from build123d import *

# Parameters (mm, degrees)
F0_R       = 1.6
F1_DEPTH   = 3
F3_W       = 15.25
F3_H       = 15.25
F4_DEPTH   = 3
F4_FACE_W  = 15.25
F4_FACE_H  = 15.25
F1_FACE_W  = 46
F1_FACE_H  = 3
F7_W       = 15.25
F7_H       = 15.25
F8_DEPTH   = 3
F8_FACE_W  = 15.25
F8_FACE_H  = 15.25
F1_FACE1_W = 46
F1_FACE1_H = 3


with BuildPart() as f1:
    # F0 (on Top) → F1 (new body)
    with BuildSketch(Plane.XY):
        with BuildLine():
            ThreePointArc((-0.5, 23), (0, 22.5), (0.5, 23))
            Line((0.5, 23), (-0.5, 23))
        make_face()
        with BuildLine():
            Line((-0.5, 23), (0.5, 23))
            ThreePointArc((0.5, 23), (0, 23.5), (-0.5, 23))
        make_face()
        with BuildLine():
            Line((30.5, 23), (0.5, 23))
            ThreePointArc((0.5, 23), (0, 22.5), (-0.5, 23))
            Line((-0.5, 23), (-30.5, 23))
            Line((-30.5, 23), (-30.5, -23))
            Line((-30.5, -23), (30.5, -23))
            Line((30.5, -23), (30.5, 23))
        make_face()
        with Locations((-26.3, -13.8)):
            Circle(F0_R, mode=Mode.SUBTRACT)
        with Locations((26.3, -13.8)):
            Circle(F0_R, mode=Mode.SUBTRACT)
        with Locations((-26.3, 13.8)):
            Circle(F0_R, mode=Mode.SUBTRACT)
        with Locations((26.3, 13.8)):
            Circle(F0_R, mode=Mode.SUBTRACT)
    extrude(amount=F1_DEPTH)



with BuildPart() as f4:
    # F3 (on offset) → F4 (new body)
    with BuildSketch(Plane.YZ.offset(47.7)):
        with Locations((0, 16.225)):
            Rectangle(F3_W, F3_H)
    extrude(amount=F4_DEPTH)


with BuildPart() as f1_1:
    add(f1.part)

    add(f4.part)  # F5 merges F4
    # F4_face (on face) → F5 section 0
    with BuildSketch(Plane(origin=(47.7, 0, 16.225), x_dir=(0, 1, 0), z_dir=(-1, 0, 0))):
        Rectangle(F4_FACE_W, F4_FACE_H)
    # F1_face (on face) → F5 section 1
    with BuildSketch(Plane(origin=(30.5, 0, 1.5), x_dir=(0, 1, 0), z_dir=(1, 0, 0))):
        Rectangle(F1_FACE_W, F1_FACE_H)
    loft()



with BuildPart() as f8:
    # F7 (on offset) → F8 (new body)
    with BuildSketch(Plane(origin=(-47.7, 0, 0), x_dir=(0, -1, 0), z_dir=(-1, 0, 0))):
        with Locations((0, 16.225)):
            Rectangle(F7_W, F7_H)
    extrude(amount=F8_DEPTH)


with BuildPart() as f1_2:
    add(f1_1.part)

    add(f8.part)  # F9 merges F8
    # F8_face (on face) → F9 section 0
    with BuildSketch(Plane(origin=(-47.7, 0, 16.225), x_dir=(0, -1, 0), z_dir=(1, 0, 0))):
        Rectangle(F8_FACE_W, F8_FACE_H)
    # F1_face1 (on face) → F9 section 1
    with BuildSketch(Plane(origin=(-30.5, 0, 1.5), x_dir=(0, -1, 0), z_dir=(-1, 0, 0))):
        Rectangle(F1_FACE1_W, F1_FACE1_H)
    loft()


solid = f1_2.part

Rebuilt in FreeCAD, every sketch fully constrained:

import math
import FreeCAD as App
import Part
import Sketcher

V = App.Vector

doc = App.newDocument("Part")
params = doc.addObject("Spreadsheet::Sheet", "Params")
for row, (alias, value) in enumerate([
    ("sketch1_diameter", "3.2 mm"),
    ("sketch1_radius", "0.5 mm"),
    ("sketch1_width", "30 mm"),
    ("sketch1_height", "46 mm"),
    ("pad1_length", "3 mm"),
    ("sketch2_width", "15.25 mm"),
    ("pad2_length", "3 mm"),
    ("sketch3_width", "15.25 mm"),
    ("sketch4_width", "46 mm"),
    ("sketch4_height", "3 mm"),
    ("sketch5_width", "15.25 mm"),
    ("pad3_length", "3 mm"),
    ("sketch6_width", "15.25 mm"),
    ("sketch7_width", "46 mm"),
    ("sketch7_height", "3 mm"),
], start=1):
    params.set(f"A{row}", alias)
    params.set(f"B{row}", "=" + value)
    params.setAlias(f"B{row}", alias)

body = doc.addObject("PartDesign::Body", "Body")

# Sketch on XY plane
sketch1 = doc.addObject("Sketcher::SketchObject", "Sketch")
body.addObject(sketch1)
sketch1.AttachmentSupport = (doc.XY_Plane, [""])
sketch1.MapMode = "FlatFace"
sketch1.addGeometry([
    Part.ArcOfCircle(Part.Circle(V(0, 23, 0), V(0, 0, 1), 0.5), math.radians(0), math.radians(180)),  # 0
    Part.LineSegment(V(-0.5, 23, 0), V(-30.5, 23, 0)),  # 1
    Part.LineSegment(V(-30.5, 23, 0), V(-30.5, -23, 0)),  # 2
    Part.LineSegment(V(-30.5, -23, 0), V(30.5, -23, 0)),  # 3
    Part.LineSegment(V(30.5, -23, 0), V(30.5, 23, 0)),  # 4
    Part.LineSegment(V(30.5, 23, 0), V(0.5, 23, 0)),  # 5
    Part.Circle(V(-26.3, -13.8, 0), V(0, 0, 1), 1.6),  # 6
    Part.Circle(V(26.3, -13.8, 0), V(0, 0, 1), 1.6),  # 7
    Part.Circle(V(-26.3, 13.8, 0), V(0, 0, 1), 1.6),  # 8
    Part.Circle(V(26.3, 13.8, 0), V(0, 0, 1), 1.6),  # 9
], False)
sketch1.addConstraint([
    Sketcher.Constraint("Coincident", 0, 2, 1, 1),
    Sketcher.Constraint("Coincident", 1, 2, 2, 1),
    Sketcher.Constraint("Coincident", 2, 2, 3, 1),
    Sketcher.Constraint("Coincident", 3, 2, 4, 1),
    Sketcher.Constraint("Coincident", 4, 2, 5, 1),
    Sketcher.Constraint("Coincident", 5, 2, 0, 1),
    Sketcher.Constraint("Horizontal", 1),
    Sketcher.Constraint("Vertical", 2),
    Sketcher.Constraint("Horizontal", 3),
    Sketcher.Constraint("Vertical", 4),
    Sketcher.Constraint("Horizontal", 5),
    Sketcher.Constraint("Equal", 6, 7),
    Sketcher.Constraint("Equal", 7, 8),
    Sketcher.Constraint("Equal", 8, 9),
    Sketcher.Constraint("Symmetric", 7, 3, 8, 3, -1, 1),
    Sketcher.Constraint("Symmetric", 6, 3, 9, 3, -1, 1),
    Sketcher.Constraint("Symmetric", 1, 2, 3, 2, -1, 1),
    Sketcher.Constraint("Symmetric", 6, 3, 7, 3, -2),
    Sketcher.Constraint("Symmetric", 0, 2, 5, 2, -2),
    Sketcher.Constraint("Diameter", 6, 3.2),
    Sketcher.Constraint("Radius", 0, 0.5),
    Sketcher.Constraint("DistanceX", 1, 2, 1, 1, 30.0),
    Sketcher.Constraint("DistanceY", 2, 2, 2, 1, 46.0),
    Sketcher.Constraint("DistanceY", -1, 1, 0, 3, 23.0),
    Sketcher.Constraint("DistanceX", 6, 3, -1, 1, 26.3),
    Sketcher.Constraint("DistanceY", 6, 3, -1, 1, 13.8),
])
sketch1.setExpression("Constraints[19]", "Params.sketch1_diameter")
sketch1.setExpression("Constraints[20]", "Params.sketch1_radius")
sketch1.setExpression("Constraints[21]", "Params.sketch1_width")
sketch1.setExpression("Constraints[22]", "Params.sketch1_height")
pad1 = doc.addObject("PartDesign::Pad", "Pad")
body.addObject(pad1)
pad1.Profile = sketch1
pad1.setExpression("Length", "Params.pad1_length")
body2 = doc.addObject("PartDesign::Body", "Body001")

# Sketch on YZ plane
sketch2 = doc.addObject("Sketcher::SketchObject", "Sketch001")
body2.addObject(sketch2)
sketch2.AttachmentSupport = (doc.getObject("YZ_Plane001"), [""])
sketch2.MapMode = "FlatFace"
sketch2.AttachmentOffset = App.Placement(V(0, 0, 47.7), App.Rotation())
sketch2.addGeometry([
    Part.LineSegment(V(-7.625, 23.85, 0), V(-7.625, 8.6, 0)),
    Part.LineSegment(V(-7.625, 8.6, 0), V(7.625, 8.6, 0)),
    Part.LineSegment(V(7.625, 8.6, 0), V(7.625, 23.85, 0)),
    Part.LineSegment(V(7.625, 23.85, 0), V(-7.625, 23.85, 0)),
], False)
sketch2.addConstraint([
    Sketcher.Constraint("Coincident", 0, 2, 1, 1),
    Sketcher.Constraint("Coincident", 1, 2, 2, 1),
    Sketcher.Constraint("Coincident", 2, 2, 3, 1),
    Sketcher.Constraint("Coincident", 3, 2, 0, 1),
    Sketcher.Constraint("Vertical", 0),
    Sketcher.Constraint("Horizontal", 1),
    Sketcher.Constraint("Vertical", 2),
    Sketcher.Constraint("Horizontal", 3),
    Sketcher.Constraint("Equal", 3, 0),
    Sketcher.Constraint("DistanceX", 1, 1, 1, 2, 15.25),
    Sketcher.Constraint("DistanceY", -1, 1, 0, 2, 8.6),
    Sketcher.Constraint("DistanceX", 0, 2, -1, 1, 7.625),
])
sketch2.setExpression("Constraints[9]", "Params.sketch2_width")
pad2 = doc.addObject("PartDesign::Pad", "Pad001")
body2.addObject(pad2)
pad2.Profile = sketch2
pad2.setExpression("Length", "Params.pad2_length")
body.AllowCompound = True
doc.recompute()

boolean = doc.addObject("PartDesign::Boolean", "Boolean")
body.addObject(boolean)
boolean.Type = "Fuse"
boolean.addObjects([body2])

# Sketch on YZ plane
sketch3 = doc.addObject("Sketcher::SketchObject", "Sketch002")
body.addObject(sketch3)
sketch3.AttachmentSupport = (doc.YZ_Plane, [""])
sketch3.MapMode = "FlatFace"
sketch3.AttachmentOffset = App.Placement(V(0, 0, 47.7), App.Rotation())
sketch3.addGeometry([
    Part.LineSegment(V(-7.625, 8.6, 0), V(-7.625, 23.85, 0)),
    Part.LineSegment(V(-7.625, 23.85, 0), V(7.625, 23.85, 0)),
    Part.LineSegment(V(7.625, 23.85, 0), V(7.625, 8.6, 0)),
    Part.LineSegment(V(7.625, 8.6, 0), V(-7.625, 8.6, 0)),
], False)
sketch3.addConstraint([
    Sketcher.Constraint("Coincident", 0, 2, 1, 1),
    Sketcher.Constraint("Coincident", 1, 2, 2, 1),
    Sketcher.Constraint("Coincident", 2, 2, 3, 1),
    Sketcher.Constraint("Coincident", 3, 2, 0, 1),
    Sketcher.Constraint("Vertical", 0),
    Sketcher.Constraint("Horizontal", 1),
    Sketcher.Constraint("Vertical", 2),
    Sketcher.Constraint("Horizontal", 3),
    Sketcher.Constraint("Equal", 3, 0),
    Sketcher.Constraint("DistanceX", 1, 1, 1, 2, 15.25),
    Sketcher.Constraint("DistanceY", -1, 1, 2, 2, 8.6),
    Sketcher.Constraint("DistanceX", 0, 2, -1, 1, 7.625),
])
sketch3.setExpression("Constraints[9]", "Params.sketch3_width")

# Sketch on YZ plane
sketch4 = doc.addObject("Sketcher::SketchObject", "Sketch003")
body.addObject(sketch4)
sketch4.AttachmentSupport = (doc.YZ_Plane, [""])
sketch4.MapMode = "FlatFace"
sketch4.AttachmentOffset = App.Placement(V(0, 0, 30.5), App.Rotation())
sketch4.addGeometry([
    Part.LineSegment(V(-23, 3, 0), V(-23, 0, 0)),
    Part.LineSegment(V(-23, 0, 0), V(23, 0, 0)),
    Part.LineSegment(V(23, 0, 0), V(23, 3, 0)),
    Part.LineSegment(V(23, 3, 0), V(-23, 3, 0)),
], False)
sketch4.addConstraint([
    Sketcher.Constraint("Coincident", 0, 2, 1, 1),
    Sketcher.Constraint("Coincident", 1, 2, 2, 1),
    Sketcher.Constraint("Coincident", 2, 2, 3, 1),
    Sketcher.Constraint("Coincident", 3, 2, 0, 1),
    Sketcher.Constraint("Vertical", 0),
    Sketcher.Constraint("Horizontal", 1),
    Sketcher.Constraint("Vertical", 2),
    Sketcher.Constraint("Horizontal", 3),
    Sketcher.Constraint("Symmetric", 0, 2, 1, 2, -1, 1),
    Sketcher.Constraint("DistanceX", 1, 1, 1, 2, 46.0),
    Sketcher.Constraint("DistanceY", 0, 2, 0, 1, 3.0),
])
sketch4.setExpression("Constraints[9]", "Params.sketch4_width")
sketch4.setExpression("Constraints[10]", "Params.sketch4_height")

additiveloft = doc.addObject("PartDesign::AdditiveLoft", "AdditiveLoft")
body.addObject(additiveloft)
additiveloft.Profile = sketch3
additiveloft.Sections = [sketch4]
body3 = doc.addObject("PartDesign::Body", "Body002")

# Sketch on YZ plane
sketch5 = doc.addObject("Sketcher::SketchObject", "Sketch004")
body3.addObject(sketch5)
sketch5.AttachmentSupport = (doc.getObject("YZ_Plane002"), [""])
sketch5.MapMode = "FlatFace"
sketch5.AttachmentOffset = App.Placement(V(0, 0, -47.7), App.Rotation())
sketch5.addGeometry([
    Part.LineSegment(V(7.625, 23.85, 0), V(7.625, 8.6, 0)),
    Part.LineSegment(V(7.625, 8.6, 0), V(-7.625, 8.6, 0)),
    Part.LineSegment(V(-7.625, 8.6, 0), V(-7.625, 23.85, 0)),
    Part.LineSegment(V(-7.625, 23.85, 0), V(7.625, 23.85, 0)),
], False)
sketch5.addConstraint([
    Sketcher.Constraint("Coincident", 0, 2, 1, 1),
    Sketcher.Constraint("Coincident", 1, 2, 2, 1),
    Sketcher.Constraint("Coincident", 2, 2, 3, 1),
    Sketcher.Constraint("Coincident", 3, 2, 0, 1),
    Sketcher.Constraint("Vertical", 0),
    Sketcher.Constraint("Horizontal", 1),
    Sketcher.Constraint("Vertical", 2),
    Sketcher.Constraint("Horizontal", 3),
    Sketcher.Constraint("Equal", 3, 0),
    Sketcher.Constraint("DistanceX", 1, 2, 1, 1, 15.25),
    Sketcher.Constraint("DistanceY", -1, 1, 0, 2, 8.6),
    Sketcher.Constraint("DistanceX", -1, 1, 0, 2, 7.625),
])
sketch5.setExpression("Constraints[9]", "Params.sketch5_width")
pad3 = doc.addObject("PartDesign::Pad", "Pad002")
body3.addObject(pad3)
pad3.Profile = sketch5
pad3.setExpression("Length", "Params.pad3_length")
pad3.Reversed = True
body.AllowCompound = True
doc.recompute()

boolean2 = doc.addObject("PartDesign::Boolean", "Boolean001")
body.addObject(boolean2)
boolean2.Type = "Fuse"
boolean2.addObjects([body3])

# Sketch on YZ plane
sketch6 = doc.addObject("Sketcher::SketchObject", "Sketch005")
body.addObject(sketch6)
sketch6.AttachmentSupport = (doc.YZ_Plane, [""])
sketch6.MapMode = "FlatFace"
sketch6.AttachmentOffset = App.Placement(V(0, 0, -47.7), App.Rotation())
sketch6.addGeometry([
    Part.LineSegment(V(7.625, 8.6, 0), V(7.625, 23.85, 0)),
    Part.LineSegment(V(7.625, 23.85, 0), V(-7.625, 23.85, 0)),
    Part.LineSegment(V(-7.625, 23.85, 0), V(-7.625, 8.6, 0)),
    Part.LineSegment(V(-7.625, 8.6, 0), V(7.625, 8.6, 0)),
], False)
sketch6.addConstraint([
    Sketcher.Constraint("Coincident", 0, 2, 1, 1),
    Sketcher.Constraint("Coincident", 1, 2, 2, 1),
    Sketcher.Constraint("Coincident", 2, 2, 3, 1),
    Sketcher.Constraint("Coincident", 3, 2, 0, 1),
    Sketcher.Constraint("Vertical", 0),
    Sketcher.Constraint("Horizontal", 1),
    Sketcher.Constraint("Vertical", 2),
    Sketcher.Constraint("Horizontal", 3),
    Sketcher.Constraint("Equal", 3, 0),
    Sketcher.Constraint("DistanceX", 1, 2, 1, 1, 15.25),
    Sketcher.Constraint("DistanceY", -1, 1, 2, 2, 8.6),
    Sketcher.Constraint("DistanceX", -1, 1, 0, 2, 7.625),
])
sketch6.setExpression("Constraints[9]", "Params.sketch6_width")

# Sketch on YZ plane
sketch7 = doc.addObject("Sketcher::SketchObject", "Sketch006")
body.addObject(sketch7)
sketch7.AttachmentSupport = (doc.YZ_Plane, [""])
sketch7.MapMode = "FlatFace"
sketch7.AttachmentOffset = App.Placement(V(0, 0, -30.5), App.Rotation())
sketch7.addGeometry([
    Part.LineSegment(V(23, 3, 0), V(23, 0, 0)),
    Part.LineSegment(V(23, 0, 0), V(-23, 0, 0)),
    Part.LineSegment(V(-23, 0, 0), V(-23, 3, 0)),
    Part.LineSegment(V(-23, 3, 0), V(23, 3, 0)),
], False)
sketch7.addConstraint([
    Sketcher.Constraint("Coincident", 0, 2, 1, 1),
    Sketcher.Constraint("Coincident", 1, 2, 2, 1),
    Sketcher.Constraint("Coincident", 2, 2, 3, 1),
    Sketcher.Constraint("Coincident", 3, 2, 0, 1),
    Sketcher.Constraint("Vertical", 0),
    Sketcher.Constraint("Horizontal", 1),
    Sketcher.Constraint("Vertical", 2),
    Sketcher.Constraint("Horizontal", 3),
    Sketcher.Constraint("Symmetric", 0, 2, 1, 2, -1, 1),
    Sketcher.Constraint("DistanceX", 1, 2, 1, 1, 46.0),
    Sketcher.Constraint("DistanceY", 0, 2, 0, 1, 3.0),
])
sketch7.setExpression("Constraints[9]", "Params.sketch7_width")
sketch7.setExpression("Constraints[10]", "Params.sketch7_height")

additiveloft2 = doc.addObject("PartDesign::AdditiveLoft", "AdditiveLoft001")
body.addObject(additiveloft2)
additiveloft2.Profile = sketch6
additiveloft2.Sections = [sketch7]

doc.recompute()
